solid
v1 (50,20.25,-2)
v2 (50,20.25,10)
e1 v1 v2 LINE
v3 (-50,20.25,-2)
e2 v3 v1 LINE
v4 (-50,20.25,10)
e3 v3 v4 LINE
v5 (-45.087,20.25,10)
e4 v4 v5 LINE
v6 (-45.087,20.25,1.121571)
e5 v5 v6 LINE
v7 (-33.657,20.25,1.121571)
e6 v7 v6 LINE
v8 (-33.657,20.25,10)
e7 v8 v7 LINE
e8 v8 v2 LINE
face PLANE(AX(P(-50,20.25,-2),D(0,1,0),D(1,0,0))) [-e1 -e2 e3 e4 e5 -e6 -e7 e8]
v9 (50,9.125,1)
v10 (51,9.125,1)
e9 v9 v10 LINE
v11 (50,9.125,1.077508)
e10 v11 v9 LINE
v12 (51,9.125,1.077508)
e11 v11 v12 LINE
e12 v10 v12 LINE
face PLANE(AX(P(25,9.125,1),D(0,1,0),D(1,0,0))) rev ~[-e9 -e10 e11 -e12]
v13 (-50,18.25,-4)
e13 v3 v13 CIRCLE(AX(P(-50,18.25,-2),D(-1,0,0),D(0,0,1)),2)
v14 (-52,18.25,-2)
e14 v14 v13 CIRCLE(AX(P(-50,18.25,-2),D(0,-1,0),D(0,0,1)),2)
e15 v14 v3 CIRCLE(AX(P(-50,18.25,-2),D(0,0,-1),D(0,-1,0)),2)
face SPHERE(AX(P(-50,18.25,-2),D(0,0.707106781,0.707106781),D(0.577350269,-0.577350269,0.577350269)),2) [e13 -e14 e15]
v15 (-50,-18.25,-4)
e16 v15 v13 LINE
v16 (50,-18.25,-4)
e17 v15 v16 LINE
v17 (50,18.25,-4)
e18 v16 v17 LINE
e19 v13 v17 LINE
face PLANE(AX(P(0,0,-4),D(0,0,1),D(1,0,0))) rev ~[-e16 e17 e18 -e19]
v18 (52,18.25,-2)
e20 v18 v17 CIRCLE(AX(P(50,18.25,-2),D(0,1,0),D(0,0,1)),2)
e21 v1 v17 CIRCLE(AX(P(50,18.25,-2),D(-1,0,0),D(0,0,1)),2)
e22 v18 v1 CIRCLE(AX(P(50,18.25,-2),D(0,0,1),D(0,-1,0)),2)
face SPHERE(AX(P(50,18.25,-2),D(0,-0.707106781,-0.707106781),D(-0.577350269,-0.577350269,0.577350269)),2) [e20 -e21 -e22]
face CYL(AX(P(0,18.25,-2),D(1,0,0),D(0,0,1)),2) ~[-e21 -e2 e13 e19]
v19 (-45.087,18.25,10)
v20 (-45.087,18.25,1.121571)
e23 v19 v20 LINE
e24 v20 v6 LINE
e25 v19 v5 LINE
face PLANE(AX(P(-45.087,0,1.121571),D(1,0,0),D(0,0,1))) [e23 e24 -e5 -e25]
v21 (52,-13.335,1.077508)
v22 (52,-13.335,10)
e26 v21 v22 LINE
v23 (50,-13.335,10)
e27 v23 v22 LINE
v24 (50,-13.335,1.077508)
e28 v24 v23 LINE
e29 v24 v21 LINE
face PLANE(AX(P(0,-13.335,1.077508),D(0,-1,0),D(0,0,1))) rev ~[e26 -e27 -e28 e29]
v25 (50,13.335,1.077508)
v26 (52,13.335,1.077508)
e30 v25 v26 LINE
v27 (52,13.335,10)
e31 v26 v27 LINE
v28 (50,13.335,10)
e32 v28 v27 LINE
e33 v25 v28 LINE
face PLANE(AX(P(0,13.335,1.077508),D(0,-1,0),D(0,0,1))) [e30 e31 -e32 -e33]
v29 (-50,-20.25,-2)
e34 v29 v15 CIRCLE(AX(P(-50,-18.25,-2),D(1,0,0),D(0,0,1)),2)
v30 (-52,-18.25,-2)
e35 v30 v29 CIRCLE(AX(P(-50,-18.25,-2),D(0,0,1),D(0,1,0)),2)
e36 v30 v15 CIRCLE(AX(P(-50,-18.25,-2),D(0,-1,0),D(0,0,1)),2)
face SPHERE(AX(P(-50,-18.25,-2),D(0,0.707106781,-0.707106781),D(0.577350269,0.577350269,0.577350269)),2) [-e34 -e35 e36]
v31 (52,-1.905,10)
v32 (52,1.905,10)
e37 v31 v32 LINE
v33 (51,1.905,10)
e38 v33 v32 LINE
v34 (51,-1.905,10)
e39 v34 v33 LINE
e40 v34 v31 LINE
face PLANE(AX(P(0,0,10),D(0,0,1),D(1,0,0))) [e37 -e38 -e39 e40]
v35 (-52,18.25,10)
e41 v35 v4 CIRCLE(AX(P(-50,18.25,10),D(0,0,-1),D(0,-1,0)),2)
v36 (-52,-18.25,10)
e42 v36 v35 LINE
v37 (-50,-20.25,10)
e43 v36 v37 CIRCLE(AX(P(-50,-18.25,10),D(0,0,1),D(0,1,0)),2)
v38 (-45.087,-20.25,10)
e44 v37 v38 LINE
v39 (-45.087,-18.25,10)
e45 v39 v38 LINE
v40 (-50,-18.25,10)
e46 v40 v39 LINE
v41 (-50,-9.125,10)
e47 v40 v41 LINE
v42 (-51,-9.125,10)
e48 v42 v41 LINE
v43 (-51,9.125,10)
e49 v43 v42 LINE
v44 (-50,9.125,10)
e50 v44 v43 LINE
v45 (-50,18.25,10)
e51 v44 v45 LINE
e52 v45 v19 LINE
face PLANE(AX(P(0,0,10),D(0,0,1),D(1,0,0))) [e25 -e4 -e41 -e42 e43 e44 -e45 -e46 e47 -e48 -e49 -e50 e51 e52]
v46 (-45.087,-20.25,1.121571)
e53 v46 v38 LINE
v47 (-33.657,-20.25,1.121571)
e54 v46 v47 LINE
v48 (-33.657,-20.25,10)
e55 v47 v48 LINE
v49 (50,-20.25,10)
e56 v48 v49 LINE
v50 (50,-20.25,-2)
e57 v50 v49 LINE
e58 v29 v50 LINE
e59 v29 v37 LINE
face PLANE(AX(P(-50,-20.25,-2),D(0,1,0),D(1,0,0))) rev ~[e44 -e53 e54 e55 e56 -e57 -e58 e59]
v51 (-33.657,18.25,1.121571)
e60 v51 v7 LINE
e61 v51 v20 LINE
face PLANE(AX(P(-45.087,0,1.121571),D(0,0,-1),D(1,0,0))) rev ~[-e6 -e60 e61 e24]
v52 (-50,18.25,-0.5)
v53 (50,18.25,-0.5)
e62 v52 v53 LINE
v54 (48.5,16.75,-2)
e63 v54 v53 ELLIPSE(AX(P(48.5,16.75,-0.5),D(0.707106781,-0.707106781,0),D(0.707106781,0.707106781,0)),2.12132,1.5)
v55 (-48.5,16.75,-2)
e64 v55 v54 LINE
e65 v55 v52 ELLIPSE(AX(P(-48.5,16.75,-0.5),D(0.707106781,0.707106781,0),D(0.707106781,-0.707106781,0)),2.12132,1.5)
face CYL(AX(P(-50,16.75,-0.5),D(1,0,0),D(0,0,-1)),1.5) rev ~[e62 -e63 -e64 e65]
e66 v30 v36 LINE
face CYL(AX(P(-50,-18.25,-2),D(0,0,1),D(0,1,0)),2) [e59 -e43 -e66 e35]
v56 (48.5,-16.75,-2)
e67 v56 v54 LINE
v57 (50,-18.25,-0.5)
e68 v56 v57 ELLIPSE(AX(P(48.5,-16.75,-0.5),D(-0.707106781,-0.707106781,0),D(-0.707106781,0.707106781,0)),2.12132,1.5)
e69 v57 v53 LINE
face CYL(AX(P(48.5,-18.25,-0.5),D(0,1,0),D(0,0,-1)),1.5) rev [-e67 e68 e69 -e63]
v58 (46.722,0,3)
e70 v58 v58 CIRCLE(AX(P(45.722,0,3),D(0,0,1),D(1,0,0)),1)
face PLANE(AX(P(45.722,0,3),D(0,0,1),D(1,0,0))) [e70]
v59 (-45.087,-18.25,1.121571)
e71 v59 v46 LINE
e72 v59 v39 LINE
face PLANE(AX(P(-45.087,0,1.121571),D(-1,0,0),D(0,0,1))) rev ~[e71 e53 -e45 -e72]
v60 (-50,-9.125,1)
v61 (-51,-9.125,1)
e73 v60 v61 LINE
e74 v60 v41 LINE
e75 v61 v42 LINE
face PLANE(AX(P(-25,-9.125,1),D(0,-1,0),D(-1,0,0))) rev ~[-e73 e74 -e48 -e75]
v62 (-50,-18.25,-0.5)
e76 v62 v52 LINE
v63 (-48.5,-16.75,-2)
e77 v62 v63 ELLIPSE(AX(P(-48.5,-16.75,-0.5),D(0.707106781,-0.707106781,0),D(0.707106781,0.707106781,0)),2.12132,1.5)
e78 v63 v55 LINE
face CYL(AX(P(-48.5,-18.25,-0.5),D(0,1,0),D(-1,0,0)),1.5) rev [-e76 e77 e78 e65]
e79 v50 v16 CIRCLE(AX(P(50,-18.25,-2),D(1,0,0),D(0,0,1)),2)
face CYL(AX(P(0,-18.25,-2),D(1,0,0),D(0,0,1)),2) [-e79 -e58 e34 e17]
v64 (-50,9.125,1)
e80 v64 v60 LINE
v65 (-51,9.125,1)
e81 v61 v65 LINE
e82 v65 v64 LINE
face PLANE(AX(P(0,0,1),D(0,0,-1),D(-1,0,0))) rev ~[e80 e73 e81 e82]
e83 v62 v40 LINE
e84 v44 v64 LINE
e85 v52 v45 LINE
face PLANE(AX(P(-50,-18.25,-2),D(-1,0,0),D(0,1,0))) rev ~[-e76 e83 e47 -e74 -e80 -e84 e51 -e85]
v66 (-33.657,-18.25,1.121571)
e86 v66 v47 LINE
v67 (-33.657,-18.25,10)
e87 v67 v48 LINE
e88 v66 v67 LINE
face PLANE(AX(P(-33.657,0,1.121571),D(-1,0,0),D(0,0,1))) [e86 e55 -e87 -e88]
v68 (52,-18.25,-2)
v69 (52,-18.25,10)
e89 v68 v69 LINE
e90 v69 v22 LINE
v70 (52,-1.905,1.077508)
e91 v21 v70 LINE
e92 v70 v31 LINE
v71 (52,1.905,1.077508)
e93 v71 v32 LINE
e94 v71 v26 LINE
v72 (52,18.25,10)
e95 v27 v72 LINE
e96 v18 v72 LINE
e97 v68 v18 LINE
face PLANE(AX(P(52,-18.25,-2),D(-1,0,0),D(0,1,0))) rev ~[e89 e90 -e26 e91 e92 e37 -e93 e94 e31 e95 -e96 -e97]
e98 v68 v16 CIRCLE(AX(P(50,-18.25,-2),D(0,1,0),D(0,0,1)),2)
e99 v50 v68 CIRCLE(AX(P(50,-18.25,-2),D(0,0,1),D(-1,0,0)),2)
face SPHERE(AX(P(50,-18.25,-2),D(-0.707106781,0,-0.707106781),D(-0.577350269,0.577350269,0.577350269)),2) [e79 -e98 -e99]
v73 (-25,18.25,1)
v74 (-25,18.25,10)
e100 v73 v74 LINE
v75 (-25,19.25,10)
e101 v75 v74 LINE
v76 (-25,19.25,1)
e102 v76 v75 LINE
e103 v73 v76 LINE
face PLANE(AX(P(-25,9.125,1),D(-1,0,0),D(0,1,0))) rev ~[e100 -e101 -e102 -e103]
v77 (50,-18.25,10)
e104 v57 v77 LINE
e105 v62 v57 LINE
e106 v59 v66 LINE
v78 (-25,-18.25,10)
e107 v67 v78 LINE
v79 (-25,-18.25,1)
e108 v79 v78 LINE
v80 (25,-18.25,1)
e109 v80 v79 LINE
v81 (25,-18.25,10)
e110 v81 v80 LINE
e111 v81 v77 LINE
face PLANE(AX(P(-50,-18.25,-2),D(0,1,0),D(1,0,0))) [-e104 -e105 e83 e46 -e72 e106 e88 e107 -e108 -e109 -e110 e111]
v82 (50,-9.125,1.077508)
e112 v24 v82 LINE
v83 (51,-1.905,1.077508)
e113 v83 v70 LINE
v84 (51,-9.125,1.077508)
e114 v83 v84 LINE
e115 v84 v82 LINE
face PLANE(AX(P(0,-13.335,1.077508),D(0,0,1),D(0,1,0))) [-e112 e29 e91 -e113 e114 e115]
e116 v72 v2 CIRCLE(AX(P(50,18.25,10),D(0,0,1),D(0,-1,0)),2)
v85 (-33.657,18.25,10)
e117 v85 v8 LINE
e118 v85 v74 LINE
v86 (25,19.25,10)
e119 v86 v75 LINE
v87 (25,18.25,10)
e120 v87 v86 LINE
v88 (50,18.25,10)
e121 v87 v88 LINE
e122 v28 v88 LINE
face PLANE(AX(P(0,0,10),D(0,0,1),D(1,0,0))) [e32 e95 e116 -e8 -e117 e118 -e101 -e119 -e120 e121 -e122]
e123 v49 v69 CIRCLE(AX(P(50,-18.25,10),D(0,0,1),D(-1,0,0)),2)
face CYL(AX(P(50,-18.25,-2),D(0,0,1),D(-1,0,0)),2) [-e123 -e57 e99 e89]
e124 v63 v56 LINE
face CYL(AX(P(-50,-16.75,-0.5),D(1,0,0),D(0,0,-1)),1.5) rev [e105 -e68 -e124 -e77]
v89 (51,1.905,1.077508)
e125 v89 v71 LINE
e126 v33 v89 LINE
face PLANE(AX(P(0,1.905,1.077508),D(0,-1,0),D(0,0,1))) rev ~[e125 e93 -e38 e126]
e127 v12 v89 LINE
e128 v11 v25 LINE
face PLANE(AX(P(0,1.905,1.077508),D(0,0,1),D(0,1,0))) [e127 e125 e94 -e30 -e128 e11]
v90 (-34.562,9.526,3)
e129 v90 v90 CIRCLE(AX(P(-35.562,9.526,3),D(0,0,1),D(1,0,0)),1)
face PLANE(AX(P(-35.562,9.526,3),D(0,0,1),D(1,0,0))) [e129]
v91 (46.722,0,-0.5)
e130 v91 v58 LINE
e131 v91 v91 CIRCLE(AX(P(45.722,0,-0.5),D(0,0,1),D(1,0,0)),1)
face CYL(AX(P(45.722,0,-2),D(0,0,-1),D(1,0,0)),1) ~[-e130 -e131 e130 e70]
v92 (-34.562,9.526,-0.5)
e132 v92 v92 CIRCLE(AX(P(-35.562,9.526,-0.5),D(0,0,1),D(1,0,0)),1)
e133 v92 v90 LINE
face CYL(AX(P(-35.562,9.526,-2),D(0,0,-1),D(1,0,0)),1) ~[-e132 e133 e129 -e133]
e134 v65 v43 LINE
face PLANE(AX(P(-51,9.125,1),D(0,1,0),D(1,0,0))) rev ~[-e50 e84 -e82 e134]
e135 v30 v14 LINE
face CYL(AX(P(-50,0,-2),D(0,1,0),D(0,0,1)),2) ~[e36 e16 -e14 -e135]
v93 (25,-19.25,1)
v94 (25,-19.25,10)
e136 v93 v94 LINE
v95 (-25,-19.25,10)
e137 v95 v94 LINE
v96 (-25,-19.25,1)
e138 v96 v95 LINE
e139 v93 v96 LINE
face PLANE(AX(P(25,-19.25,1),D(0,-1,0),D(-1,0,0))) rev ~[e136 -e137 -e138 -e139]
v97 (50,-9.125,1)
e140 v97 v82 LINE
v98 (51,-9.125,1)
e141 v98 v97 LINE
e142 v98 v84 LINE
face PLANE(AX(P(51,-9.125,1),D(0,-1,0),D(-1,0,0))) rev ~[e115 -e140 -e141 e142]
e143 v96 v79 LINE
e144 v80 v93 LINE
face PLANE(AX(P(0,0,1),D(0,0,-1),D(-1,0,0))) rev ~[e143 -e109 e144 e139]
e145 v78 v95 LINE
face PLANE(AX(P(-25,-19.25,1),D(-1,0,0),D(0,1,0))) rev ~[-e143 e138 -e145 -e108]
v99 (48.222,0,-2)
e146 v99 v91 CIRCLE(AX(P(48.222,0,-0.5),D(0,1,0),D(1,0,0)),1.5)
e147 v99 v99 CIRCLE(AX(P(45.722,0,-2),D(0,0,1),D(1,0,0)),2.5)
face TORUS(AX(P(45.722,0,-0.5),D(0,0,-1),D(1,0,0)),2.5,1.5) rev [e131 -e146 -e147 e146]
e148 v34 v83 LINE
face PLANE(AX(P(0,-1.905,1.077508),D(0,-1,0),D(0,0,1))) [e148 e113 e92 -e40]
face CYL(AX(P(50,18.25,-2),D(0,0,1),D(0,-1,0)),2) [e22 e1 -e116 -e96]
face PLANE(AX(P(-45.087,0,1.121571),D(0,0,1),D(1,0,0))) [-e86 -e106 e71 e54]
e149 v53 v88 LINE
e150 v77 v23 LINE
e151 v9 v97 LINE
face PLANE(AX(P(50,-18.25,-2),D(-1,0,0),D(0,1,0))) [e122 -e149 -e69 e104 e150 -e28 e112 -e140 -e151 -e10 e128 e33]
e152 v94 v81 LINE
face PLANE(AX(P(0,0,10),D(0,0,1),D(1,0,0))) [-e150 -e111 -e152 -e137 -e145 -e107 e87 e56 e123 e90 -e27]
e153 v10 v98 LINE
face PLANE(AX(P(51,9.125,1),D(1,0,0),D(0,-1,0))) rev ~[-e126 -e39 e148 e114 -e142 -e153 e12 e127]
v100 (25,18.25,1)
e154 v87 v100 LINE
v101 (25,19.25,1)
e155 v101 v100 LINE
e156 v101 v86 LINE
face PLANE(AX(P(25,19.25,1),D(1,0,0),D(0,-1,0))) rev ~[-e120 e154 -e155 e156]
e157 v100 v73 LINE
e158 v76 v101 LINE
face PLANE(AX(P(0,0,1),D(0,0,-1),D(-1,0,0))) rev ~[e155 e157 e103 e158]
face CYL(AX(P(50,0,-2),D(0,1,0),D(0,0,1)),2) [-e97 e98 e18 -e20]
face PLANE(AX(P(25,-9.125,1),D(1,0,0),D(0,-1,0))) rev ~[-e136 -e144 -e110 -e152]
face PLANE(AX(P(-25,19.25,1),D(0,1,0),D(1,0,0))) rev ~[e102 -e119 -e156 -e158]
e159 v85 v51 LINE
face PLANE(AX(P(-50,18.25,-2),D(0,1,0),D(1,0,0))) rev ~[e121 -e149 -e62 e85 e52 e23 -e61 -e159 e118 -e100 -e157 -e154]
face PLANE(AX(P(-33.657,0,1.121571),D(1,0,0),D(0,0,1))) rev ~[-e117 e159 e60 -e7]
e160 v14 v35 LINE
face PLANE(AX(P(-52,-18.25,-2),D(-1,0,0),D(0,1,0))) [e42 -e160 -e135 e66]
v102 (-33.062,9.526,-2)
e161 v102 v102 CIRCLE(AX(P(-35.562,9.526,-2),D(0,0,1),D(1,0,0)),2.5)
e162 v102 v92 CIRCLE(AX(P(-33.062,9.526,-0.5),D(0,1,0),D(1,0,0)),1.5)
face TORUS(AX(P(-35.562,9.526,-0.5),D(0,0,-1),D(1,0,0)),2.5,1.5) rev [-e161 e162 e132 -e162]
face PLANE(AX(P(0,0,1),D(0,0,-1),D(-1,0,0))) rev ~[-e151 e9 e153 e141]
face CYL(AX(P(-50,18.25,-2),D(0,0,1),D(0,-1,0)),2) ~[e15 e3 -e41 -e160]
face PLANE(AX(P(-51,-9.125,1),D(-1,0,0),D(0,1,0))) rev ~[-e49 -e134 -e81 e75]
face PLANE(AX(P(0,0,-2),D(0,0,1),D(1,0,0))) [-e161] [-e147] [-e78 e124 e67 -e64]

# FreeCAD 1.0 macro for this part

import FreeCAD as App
import Part
import Sketcher
from FreeCAD import Vector
Q = App.Units.Quantity


def edges_at(feature, points):
    """Names of the edges that pass closest to the given points."""
    edges = feature.Shape.Edges
    near = lambda p: min(range(len(edges)), key=lambda i: edges[i].distToShape(Part.Vertex(*p))[0])
    return sorted({f"Edge{near(p) + 1}" for p in points})


def faces_at(feature, points):
    """Names of the faces that lie closest to the given points."""
    faces = feature.Shape.Faces
    near = lambda p: min(range(len(faces)), key=lambda i: faces[i].distToShape(Part.Vertex(*p))[0])
    return sorted({f"Face{near(p) + 1}" for p in points})


def add_polygon(sketch, points):
    """Adds a closed chain of lines whose ends are joined by coincident constraints."""
    first, n = sketch.GeometryCount, len(points)
    for a, b in zip(points, points[1:] + points[:1]):
        sketch.addGeometry(Part.LineSegment(App.Vector(*a, 0), App.Vector(*b, 0)), False)
    for i in range(n):
        sketch.addConstraint(Sketcher.Constraint("Coincident", first + i, 2, first + (i + 1) % n, 1))

doc = App.newDocument("Part")
params = doc.addObject("Spreadsheet::Sheet", "Params")
for row, (alias, value) in enumerate([
    ("sketch1_width", "100 mm"),
    ("sketch1_height", "36.5 mm"),
    ("pad1_length", "12 mm"),
    ("thickness_wall", "2 mm"),
    ("sketch2_width", "50 mm"),
    ("sketch2_width2", "26 mm"),
    ("sketch2_height", "18.25 mm"),
    ("sketch3_width", "11.43 mm"),
    ("sketch4_width", "11.43 mm"),
    ("sketch5_diameter", "2 mm"),
    ("pad2_length", "5 mm"),
    ("fillet_radius", "1.5 mm"),
], start=1):
    params.set(f"A{row}", alias)
    params.set(f"B{row}", "=" + value)
    params.setAlias(f"B{row}", alias)

body = doc.addObject("PartDesign::Body", "Body")

sketch1 = body.newObject("Sketcher::SketchObject", "Sketch")
sketch1.AttachmentSupport = (doc.getObject("XY_Plane"), [""])
sketch1.MapMode = "FlatFace"
add_polygon(sketch1, [(-50, 18), (-50, -18), (50, -18), (50, 18)])
sketch1.addConstraint([
    Sketcher.Constraint("Vertical", 0),
    Sketcher.Constraint("Horizontal", 1),
    Sketcher.Constraint("Vertical", 2),
    Sketcher.Constraint("Horizontal", 3),
    Sketcher.Constraint("Symmetric", 0, 2, 2, 2, -1, 1),
    Sketcher.Constraint("DistanceX", 1, 1, 1, 2, Q("100 mm")),
    Sketcher.Constraint("DistanceY", 0, 2, 0, 1, Q("36.5 mm")),
])
sketch1.setExpression("Constraints[9]", "Params.sketch1_width")
sketch1.setExpression("Constraints[10]", "Params.sketch1_height")
pad1 = body.newObject("PartDesign::Pad", "Pad")
pad1.Profile = sketch1
pad1.setExpression("Length", "Params.pad1_length")
doc.recompute()

thickness = body.newObject("PartDesign::Thickness", "Thickness")
thickness.Base = (pad1, faces_at(pad1, [(0, 0, 12)]))
thickness.setExpression("Value", "Params.thickness_wall")
thickness.Reversed = False
thickness.Join = "Arc"

sketch2 = body.newObject("Sketcher::SketchObject", "Sketch001")
sketch2.AttachmentSupport = (doc.getObject("XY_Plane"), [""])
sketch2.MapMode = "FlatFace"
sketch2.AttachmentOffset = App.Placement(Vector(0, 0, 3), App.Rotation())
add_polygon(sketch2, [(25, 19), (-25, 19), (-25, 9), (-51, 9), (-51, -9), (-25, -9), (-25, -19), (25, -19), (25, -9), (51, -9), (51, 9), (25, 9)])
sketch2.addConstraint([
    Sketcher.Constraint("Horizontal", 0),
    Sketcher.Constraint("Vertical", 1),
    Sketcher.Constraint("Horizontal", 2),
    Sketcher.Constraint("Vertical", 3),
    Sketcher.Constraint("Horizontal", 4),
    Sketcher.Constraint("Vertical", 5),
    Sketcher.Constraint("Horizontal", 6),
    Sketcher.Constraint("Vertical", 7),
    Sketcher.Constraint("Horizontal", 8),
    Sketcher.Constraint("Vertical", 9),
    Sketcher.Constraint("Horizontal", 10),
    Sketcher.Constraint("Vertical", 11),
    Sketcher.Constraint("Symmetric", 0, 2, 6, 2, -1, 1),
    Sketcher.Constraint("Symmetric", 2, 2, 8, 2, -1, 1),
    Sketcher.Constraint("Symmetric", 4, 2, 10, 2, -1, 1),
    Sketcher.Constraint("Symmetric", 4, 2, 7, 2, -2),
    Sketcher.Constraint("DistanceX", 0, 2, 0, 1, Q("50 mm")),
    Sketcher.Constraint("DistanceX", 2, 2, 2, 1, Q("26 mm")),
    Sketcher.Constraint("DistanceY", 3, 2, 3, 1, Q("18.25 mm")),
    Sketcher.Constraint("DistanceY", 5, 2, 0, 2, Q("38.5 mm")),
])
sketch2.setExpression("Constraints[28]", "Params.sketch2_width")
sketch2.setExpression("Constraints[29]", "Params.sketch2_width2")
sketch2.setExpression("Constraints[30]", "Params.sketch2_height")
pocket1 = body.newObject("PartDesign::Pocket", "Pocket")
pocket1.Profile = sketch2
pocket1.Type = "ThroughAll"
pocket1.Reversed = True

sketch3 = body.newObject("Sketcher::SketchObject", "Sketch002")
sketch3.AttachmentSupport = (doc.getObject("YZ_Plane"), [""])
sketch3.MapMode = "FlatFace"
add_polygon(sketch3, [(-13, 18), (-13, 3), (-2, 3), (-2, 18)])
add_polygon(sketch3, [(2, 18), (2, 3), (13, 3), (13, 18)])
sketch3.addConstraint([
    Sketcher.Constraint("Vertical", 0),
    Sketcher.Constraint("Horizontal", 1),
    Sketcher.Constraint("Vertical", 2),
    Sketcher.Constraint("Horizontal", 3),
    Sketcher.Constraint("Vertical", 4),
    Sketcher.Constraint("Horizontal", 5),
    Sketcher.Constraint("Vertical", 6),
    Sketcher.Constraint("Horizontal", 7),
    Sketcher.Constraint("Symmetric", 1, 2, 4, 2, -2),
    Sketcher.Constraint("Symmetric", 3, 2, 6, 2, -2),
    Sketcher.Constraint("DistanceX", 1, 1, 1, 2, Q("11.43 mm")),
    Sketcher.Constraint("DistanceX", 1, 2, 4, 2, Q("3.81 mm")),
    Sketcher.Constraint("DistanceY", 0, 2, 0, 1, Q("15.122581 mm")),
    Sketcher.Constraint("DistanceY", -1, 1, 0, 2, Q("3.077508 mm")),
])
sketch3.setExpression("Constraints[18]", "Params.sketch3_width")
pocket2 = body.newObject("PartDesign::Pocket", "Pocket001")
pocket2.Profile = sketch3
pocket2.Type = "ThroughAll"
pocket2.Reversed = True

sketch4 = body.newObject("Sketcher::SketchObject", "Sketch003")
sketch4.AttachmentSupport = (doc.getObject("XZ_Plane"), [""])
sketch4.MapMode = "FlatFace"
add_polygon(sketch4, [(-45, 17), (-45, 3), (-34, 3), (-34, 17)])
sketch4.addConstraint([
    Sketcher.Constraint("Vertical", 0),
    Sketcher.Constraint("Horizontal", 1),
    Sketcher.Constraint("Vertical", 2),
    Sketcher.Constraint("Horizontal", 3),
    Sketcher.Constraint("DistanceX", 1, 1, 1, 2, Q("11.43 mm")),
    Sketcher.Constraint("DistanceX", 0, 2, -1, 1, Q("45.087 mm")),
    Sketcher.Constraint("DistanceY", 0, 2, 0, 1, Q("14.044283 mm")),
    Sketcher.Constraint("DistanceY", -1, 1, 0, 2, Q("3.12157 mm")),
])
sketch4.setExpression("Constraints[8]", "Params.sketch4_width")
pocket3 = body.newObject("PartDesign::Pocket", "Pocket002")
pocket3.Profile = sketch4
pocket3.Type = "ThroughAll"
pocket3.Midplane = True

sketch5 = body.newObject("Sketcher::SketchObject", "Sketch004")
sketch5.AttachmentSupport = (doc.getObject("XY_Plane"), [""])
sketch5.MapMode = "FlatFace"
sketch5.addGeometry([
    Part.Circle(Vector(-35.6, 9.5, 0), Vector(0, 0, 1), 1),
    Part.Circle(Vector(45.7, 0, 0), Vector(0, 0, 1), 1),
], False)
sketch5.addConstraint([
    Sketcher.Constraint("Equal", 0, 1),
    Sketcher.Constraint("PointOnObject", 1, 3, -1),
    Sketcher.Constraint("Diameter", 0, Q("2 mm")),
    Sketcher.Constraint("DistanceX", 0, 3, -1, 1, Q("35.562 mm")),
    Sketcher.Constraint("DistanceY", -1, 1, 0, 3, Q("9.526 mm")),
    Sketcher.Constraint("DistanceX", -1, 1, 1, 3, Q("45.722 mm")),
])
sketch5.setExpression("Constraints[2]", "Params.sketch5_diameter")
pad2 = body.newObject("PartDesign::Pad", "Pad001")
pad2.Profile = sketch5
pad2.setExpression("Length", "Params.pad2_length")
doc.recompute()

fillet = body.newObject("PartDesign::Fillet", "Fillet")
fillet.Base = (pad2, edges_at(pad2, [
    (0, 18.25, 0),
    (-50, 0, 0),
    (50, 0, 0),
    (0, -18.25, 0),
    (44.722, 0, 0),
    (-36.562, 9.526, 0),
]))
fillet.setExpression("Radius", "Params.fillet_radius")
body2 = doc.addObject("PartDesign::Body", "Body001")
doc.recompute()

body.Placement = App.Placement(Vector(0, 0, -2), App.Rotation(Vector(0, 0, 1), 0))
boolean = body2.newObject("PartDesign::Boolean", "Boolean")
boolean.Type = "Fuse"
boolean.addObjects([body])

doc.recompute()
